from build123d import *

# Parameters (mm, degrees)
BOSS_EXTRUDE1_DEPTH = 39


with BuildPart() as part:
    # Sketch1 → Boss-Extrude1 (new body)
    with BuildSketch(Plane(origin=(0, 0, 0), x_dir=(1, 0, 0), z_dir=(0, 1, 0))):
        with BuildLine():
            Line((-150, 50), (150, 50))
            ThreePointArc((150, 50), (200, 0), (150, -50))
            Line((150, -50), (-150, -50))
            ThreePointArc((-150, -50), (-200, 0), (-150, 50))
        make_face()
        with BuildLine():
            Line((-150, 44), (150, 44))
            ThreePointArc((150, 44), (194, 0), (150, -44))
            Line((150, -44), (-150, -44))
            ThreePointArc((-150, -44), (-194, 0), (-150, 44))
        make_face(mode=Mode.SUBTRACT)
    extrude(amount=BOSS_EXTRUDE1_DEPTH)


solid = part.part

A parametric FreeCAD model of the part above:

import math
import FreeCAD as App
import Part
import Sketcher

V = App.Vector

doc = App.newDocument("Part")
body = doc.addObject("PartDesign::Body", "Body")

# Sketch on XZ plane
sketch1 = doc.addObject("Sketcher::SketchObject", "Sketch")
body.addObject(sketch1)
sketch1.AttachmentSupport = (doc.XZ_Plane, [""])
sketch1.MapMode = "FlatFace"
sketch1.addGeometry([
    Part.LineSegment(V(150, -50, 0), V(-150, -50, 0)),  # 0
    Part.ArcOfCircle(Part.Circle(V(-150, 0, 0), V(0, 0, 1), 50), math.radians(90), math.radians(270)),  # 1
    Part.LineSegment(V(-150, 50, 0), V(150, 50, 0)),  # 2
    Part.ArcOfCircle(Part.Circle(V(150, 0, 0), V(0, 0, 1), 50), math.radians(-90), math.radians(90)),  # 3
    Part.LineSegment(V(-150, -44, 0), V(150, -44, 0)),  # 4
    Part.ArcOfCircle(Part.Circle(V(150, 0, 0), V(0, 0, 1), 44), math.radians(-90), math.radians(90)),  # 5
    Part.LineSegment(V(150, 44, 0), V(-150, 44, 0)),  # 6
    Part.ArcOfCircle(Part.Circle(V(-150, 0, 0), V(0, 0, 1), 44), math.radians(90), math.radians(270)),  # 7
], False)
sketch1.addConstraint([
    Sketcher.Constraint("Tangent", 0, 2, 1, 2),
    Sketcher.Constraint("Tangent", 1, 1, 2, 1),
    Sketcher.Constraint("Tangent", 2, 2, 3, 2),
    Sketcher.Constraint("Tangent", 3, 1, 0, 1),
    Sketcher.Constraint("Tangent", 4, 2, 5, 1),
    Sketcher.Constraint("Tangent", 5, 2, 6, 1),
    Sketcher.Constraint("Tangent", 6, 2, 7, 1),
    Sketcher.Constraint("Tangent", 7, 2, 4, 1),
    Sketcher.Constraint("Horizontal", 0),
    Sketcher.Constraint("Horizontal", 2),
    Sketcher.Constraint("Horizontal", 4),
    Sketcher.Constraint("Horizontal", 6),
    Sketcher.Constraint("Coincident", 5, 3, 3, 3),
    Sketcher.Constraint("Symmetric", 1, 3, 3, 3, -1, 1),
    Sketcher.Constraint("Vertical", 7, 3, 0, 2),
    Sketcher.Constraint("Radius", 1, 50.0),
    Sketcher.Constraint("Radius", 5, 44.0),
    Sketcher.Constraint("DistanceX", 0, 2, 0, 1, 300.0),
])
pad1 = doc.addObject("PartDesign::Pad", "Pad")
body.addObject(pad1)
pad1.Profile = sketch1
pad1.Length = 39
pad1.Reversed = True

doc.recompute()
